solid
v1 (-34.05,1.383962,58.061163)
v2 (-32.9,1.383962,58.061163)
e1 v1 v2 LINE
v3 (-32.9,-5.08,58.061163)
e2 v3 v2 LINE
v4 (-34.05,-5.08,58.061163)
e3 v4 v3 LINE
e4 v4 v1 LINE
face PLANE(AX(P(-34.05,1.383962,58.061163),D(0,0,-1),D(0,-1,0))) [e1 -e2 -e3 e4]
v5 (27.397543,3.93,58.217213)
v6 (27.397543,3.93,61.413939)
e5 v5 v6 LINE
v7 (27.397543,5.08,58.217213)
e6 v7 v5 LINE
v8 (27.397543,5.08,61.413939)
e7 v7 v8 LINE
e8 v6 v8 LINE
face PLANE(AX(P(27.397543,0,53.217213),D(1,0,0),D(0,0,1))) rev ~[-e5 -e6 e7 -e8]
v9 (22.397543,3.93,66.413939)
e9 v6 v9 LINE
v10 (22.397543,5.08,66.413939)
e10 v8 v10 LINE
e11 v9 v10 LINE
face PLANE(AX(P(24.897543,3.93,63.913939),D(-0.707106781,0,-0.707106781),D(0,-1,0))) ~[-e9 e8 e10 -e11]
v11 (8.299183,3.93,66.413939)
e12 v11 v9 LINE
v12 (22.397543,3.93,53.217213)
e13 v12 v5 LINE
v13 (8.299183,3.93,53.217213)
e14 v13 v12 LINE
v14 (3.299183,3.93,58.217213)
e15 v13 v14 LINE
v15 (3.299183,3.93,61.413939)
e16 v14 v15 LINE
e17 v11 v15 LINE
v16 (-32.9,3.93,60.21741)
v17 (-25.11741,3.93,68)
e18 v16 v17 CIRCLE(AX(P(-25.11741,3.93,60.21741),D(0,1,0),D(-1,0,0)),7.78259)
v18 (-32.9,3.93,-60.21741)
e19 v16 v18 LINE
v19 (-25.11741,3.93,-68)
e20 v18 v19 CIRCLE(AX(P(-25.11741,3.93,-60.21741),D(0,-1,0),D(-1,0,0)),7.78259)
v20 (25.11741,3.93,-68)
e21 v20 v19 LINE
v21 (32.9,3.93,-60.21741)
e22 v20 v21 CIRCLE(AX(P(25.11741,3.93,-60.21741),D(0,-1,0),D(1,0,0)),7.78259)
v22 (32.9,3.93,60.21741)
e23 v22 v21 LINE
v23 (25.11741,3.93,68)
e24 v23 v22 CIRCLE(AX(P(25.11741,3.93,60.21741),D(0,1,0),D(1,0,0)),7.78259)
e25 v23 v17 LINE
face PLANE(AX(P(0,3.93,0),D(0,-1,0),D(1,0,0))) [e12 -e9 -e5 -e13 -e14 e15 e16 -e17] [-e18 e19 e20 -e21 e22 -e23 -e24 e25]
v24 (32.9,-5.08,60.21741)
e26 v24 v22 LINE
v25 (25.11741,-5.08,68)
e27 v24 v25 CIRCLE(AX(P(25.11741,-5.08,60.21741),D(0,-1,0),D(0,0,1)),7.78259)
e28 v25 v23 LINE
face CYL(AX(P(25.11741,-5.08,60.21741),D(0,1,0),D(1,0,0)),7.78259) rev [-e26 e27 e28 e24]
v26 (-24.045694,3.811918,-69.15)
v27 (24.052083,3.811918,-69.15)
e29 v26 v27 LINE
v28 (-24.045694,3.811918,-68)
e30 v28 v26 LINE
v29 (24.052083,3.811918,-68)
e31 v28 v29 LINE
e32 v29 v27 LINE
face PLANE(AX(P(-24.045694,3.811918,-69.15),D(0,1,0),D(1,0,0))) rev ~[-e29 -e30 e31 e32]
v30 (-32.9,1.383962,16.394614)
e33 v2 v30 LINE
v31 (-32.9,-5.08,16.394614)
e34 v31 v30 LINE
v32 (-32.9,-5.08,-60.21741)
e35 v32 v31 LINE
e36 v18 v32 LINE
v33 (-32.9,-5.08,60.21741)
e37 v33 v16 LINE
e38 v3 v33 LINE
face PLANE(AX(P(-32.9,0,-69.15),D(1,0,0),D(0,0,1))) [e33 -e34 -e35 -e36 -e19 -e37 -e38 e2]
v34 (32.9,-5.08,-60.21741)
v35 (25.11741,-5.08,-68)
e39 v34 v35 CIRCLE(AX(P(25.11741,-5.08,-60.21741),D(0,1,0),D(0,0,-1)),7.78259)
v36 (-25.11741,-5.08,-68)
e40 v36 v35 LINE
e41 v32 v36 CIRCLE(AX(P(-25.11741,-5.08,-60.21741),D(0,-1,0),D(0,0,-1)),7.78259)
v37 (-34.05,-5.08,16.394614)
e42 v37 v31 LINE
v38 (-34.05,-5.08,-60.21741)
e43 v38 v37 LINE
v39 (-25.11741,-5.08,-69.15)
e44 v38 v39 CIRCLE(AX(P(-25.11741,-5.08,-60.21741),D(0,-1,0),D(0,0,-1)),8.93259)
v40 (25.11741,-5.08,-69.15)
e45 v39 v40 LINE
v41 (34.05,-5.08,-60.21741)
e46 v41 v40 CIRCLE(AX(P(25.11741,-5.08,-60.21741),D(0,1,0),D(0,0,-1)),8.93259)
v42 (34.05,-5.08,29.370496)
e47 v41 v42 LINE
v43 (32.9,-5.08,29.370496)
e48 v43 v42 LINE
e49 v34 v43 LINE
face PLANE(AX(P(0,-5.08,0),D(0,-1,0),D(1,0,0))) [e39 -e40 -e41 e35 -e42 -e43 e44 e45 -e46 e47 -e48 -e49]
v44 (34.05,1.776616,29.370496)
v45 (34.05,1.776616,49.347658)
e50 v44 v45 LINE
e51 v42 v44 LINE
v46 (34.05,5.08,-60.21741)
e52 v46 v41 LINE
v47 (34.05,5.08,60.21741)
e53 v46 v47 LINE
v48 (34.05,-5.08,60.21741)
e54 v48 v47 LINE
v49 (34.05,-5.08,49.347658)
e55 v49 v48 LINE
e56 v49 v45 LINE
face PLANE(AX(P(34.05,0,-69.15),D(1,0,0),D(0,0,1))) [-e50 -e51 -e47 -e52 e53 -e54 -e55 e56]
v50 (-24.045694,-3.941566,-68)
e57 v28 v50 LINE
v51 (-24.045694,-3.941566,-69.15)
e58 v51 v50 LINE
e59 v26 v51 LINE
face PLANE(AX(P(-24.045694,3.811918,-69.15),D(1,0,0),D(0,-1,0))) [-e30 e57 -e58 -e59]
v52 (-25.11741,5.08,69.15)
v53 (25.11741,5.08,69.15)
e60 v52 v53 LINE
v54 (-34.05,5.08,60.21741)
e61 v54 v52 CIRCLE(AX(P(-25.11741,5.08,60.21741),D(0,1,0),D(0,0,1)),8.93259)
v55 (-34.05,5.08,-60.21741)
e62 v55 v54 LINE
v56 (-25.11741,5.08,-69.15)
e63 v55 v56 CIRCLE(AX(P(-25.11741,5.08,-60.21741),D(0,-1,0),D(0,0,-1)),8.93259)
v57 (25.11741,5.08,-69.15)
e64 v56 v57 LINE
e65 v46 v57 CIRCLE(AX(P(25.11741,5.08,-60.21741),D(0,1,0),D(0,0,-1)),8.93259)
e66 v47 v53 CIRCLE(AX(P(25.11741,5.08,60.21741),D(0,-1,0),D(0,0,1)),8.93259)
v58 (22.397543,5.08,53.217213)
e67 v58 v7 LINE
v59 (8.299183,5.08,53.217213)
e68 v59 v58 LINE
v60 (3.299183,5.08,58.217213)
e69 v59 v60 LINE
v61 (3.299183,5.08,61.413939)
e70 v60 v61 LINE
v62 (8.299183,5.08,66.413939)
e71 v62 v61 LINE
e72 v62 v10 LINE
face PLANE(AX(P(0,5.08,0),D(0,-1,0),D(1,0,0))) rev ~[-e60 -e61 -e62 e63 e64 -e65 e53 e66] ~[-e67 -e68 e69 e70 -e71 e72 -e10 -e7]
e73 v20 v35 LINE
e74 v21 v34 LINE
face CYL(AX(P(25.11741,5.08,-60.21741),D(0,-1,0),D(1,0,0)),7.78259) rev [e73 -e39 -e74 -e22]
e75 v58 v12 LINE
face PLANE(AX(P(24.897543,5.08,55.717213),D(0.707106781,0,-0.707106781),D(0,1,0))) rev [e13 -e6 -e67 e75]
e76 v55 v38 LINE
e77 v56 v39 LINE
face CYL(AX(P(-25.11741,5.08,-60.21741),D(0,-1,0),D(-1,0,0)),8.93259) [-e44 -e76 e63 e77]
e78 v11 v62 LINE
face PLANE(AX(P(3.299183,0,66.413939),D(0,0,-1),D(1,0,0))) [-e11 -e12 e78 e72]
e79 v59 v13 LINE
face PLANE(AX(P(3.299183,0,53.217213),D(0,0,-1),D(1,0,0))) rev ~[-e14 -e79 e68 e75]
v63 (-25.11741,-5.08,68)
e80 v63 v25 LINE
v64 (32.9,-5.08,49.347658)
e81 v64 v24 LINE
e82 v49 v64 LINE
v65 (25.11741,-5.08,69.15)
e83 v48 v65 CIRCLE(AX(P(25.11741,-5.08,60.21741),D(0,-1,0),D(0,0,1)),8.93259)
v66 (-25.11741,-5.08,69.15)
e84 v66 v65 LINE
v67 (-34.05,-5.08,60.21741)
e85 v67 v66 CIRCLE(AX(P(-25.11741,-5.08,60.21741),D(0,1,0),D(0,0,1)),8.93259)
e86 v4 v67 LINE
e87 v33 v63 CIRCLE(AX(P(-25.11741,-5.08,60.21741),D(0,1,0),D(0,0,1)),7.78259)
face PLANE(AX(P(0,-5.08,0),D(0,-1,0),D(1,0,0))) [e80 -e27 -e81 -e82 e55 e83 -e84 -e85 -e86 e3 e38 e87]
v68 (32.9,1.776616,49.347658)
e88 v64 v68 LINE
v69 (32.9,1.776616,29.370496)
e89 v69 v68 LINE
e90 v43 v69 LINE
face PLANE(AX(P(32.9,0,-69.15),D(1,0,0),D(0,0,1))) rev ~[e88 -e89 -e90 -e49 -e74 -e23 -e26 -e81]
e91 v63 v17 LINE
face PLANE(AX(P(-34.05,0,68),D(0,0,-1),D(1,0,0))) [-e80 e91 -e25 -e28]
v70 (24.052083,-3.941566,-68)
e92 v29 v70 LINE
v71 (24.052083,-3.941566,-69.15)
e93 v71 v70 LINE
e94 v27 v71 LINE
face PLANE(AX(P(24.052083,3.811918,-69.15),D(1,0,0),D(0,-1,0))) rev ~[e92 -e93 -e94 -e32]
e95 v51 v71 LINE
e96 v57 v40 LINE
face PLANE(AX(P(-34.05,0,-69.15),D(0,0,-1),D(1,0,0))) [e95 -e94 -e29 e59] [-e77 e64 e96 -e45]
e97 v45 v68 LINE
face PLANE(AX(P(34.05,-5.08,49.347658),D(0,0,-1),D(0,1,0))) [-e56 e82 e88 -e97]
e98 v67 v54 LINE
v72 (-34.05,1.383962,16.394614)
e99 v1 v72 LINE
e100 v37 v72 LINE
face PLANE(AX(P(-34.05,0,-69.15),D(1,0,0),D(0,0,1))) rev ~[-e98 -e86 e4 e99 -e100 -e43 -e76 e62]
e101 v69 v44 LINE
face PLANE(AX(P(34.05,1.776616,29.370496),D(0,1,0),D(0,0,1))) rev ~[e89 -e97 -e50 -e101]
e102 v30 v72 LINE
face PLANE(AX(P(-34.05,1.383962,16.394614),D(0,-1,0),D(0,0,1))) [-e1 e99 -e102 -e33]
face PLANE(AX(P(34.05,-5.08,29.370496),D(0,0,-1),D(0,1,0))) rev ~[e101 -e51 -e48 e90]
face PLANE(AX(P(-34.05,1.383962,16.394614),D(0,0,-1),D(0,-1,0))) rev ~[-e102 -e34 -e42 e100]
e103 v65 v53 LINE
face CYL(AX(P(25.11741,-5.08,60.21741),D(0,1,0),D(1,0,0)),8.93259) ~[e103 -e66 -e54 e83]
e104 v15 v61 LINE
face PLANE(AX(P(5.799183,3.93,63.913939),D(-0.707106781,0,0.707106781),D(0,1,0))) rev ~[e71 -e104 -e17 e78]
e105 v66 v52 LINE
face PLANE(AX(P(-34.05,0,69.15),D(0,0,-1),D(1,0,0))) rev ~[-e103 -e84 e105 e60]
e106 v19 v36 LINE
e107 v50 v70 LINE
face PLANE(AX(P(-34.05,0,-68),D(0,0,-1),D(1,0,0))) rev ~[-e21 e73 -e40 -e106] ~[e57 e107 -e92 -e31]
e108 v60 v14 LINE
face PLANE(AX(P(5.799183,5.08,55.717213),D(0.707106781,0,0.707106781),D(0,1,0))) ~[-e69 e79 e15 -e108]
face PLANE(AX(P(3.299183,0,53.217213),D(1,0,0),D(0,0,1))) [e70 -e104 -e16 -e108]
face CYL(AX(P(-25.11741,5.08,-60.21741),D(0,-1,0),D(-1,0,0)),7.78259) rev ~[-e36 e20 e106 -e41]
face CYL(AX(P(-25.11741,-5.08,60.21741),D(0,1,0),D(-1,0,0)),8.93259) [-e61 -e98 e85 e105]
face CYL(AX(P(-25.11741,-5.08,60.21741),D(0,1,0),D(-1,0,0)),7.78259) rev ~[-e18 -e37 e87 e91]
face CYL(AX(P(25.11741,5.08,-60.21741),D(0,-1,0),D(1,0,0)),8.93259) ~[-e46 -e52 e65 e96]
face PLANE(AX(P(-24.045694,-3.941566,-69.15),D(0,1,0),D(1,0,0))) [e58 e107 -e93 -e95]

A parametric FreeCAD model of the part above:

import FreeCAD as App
import Part
import Sketcher
Q = App.Units.Quantity


def edges_at(feature, points):
    """Names of the edges that pass closest to the given points."""
    edges = feature.Shape.Edges
    near = lambda p: min(range(len(edges)), key=lambda i: edges[i].distToShape(Part.Vertex(*p))[0])
    return sorted({f"Edge{near(p) + 1}" for p in points})


def faces_at(feature, points):
    """Names of the faces that lie closest to the given points."""
    faces = feature.Shape.Faces
    near = lambda p: min(range(len(faces)), key=lambda i: faces[i].distToShape(Part.Vertex(*p))[0])
    return sorted({f"Face{near(p) + 1}" for p in points})

doc = App.newDocument("Part")
body = doc.addObject("PartDesign::Body", "Body")

# Sketch on XZ plane
sketch1 = body.newObject("Sketcher::SketchObject", "Sketch")
sketch1.AttachmentSupport = (doc.getObject("XZ_Plane"), [""])
sketch1.MapMode = "FlatFace"
sketch1.addGeometry([
    Part.LineSegment(App.Vector(-34, 69, 0), App.Vector(-34, -69, 0)),
    Part.LineSegment(App.Vector(-34, -69, 0), App.Vector(34, -69, 0)),
    Part.LineSegment(App.Vector(34, -69, 0), App.Vector(34, 69, 0)),
    Part.LineSegment(App.Vector(34, 69, 0), App.Vector(-34, 69, 0)),
], False)
sketch1.addConstraint([
    Sketcher.Constraint("Coincident", 0, 2, 1, 1),
    Sketcher.Constraint("Coincident", 1, 2, 2, 1),
    Sketcher.Constraint("Coincident", 2, 2, 3, 1),
    Sketcher.Constraint("Coincident", 3, 2, 0, 1),
    Sketcher.Constraint("Vertical", 0),
    Sketcher.Constraint("Horizontal", 1),
    Sketcher.Constraint("Vertical", 2),
    Sketcher.Constraint("Horizontal", 3),
    Sketcher.Constraint("Symmetric", 0, 2, 2, 2, -1, 1),
    Sketcher.Constraint("DistanceX", 1, 1, 1, 2, Q("68.1 mm")),
    Sketcher.Constraint("DistanceY", 0, 2, 0, 1, Q("138.3 mm")),
])
pad1 = body.newObject("PartDesign::Pad", "Pad")
pad1.Profile = sketch1
pad1.Length = 10.16
pad1.Midplane = True
doc.recompute()

fillet = body.newObject("PartDesign::Fillet", "Fillet")
fillet.Base = (pad1, edges_at(pad1, [
    (-34.05, 0, 69.15),
    (34.05, 0, 69.15),
    (34.05, 0, -69.15),
    (-34.05, 0, -69.15),
]))
fillet.Radius = 8.93259
doc.recompute()

thickness = body.newObject("PartDesign::Thickness", "Thickness")
thickness.Base = (fillet, faces_at(fillet, [(0, -5.08, 0)]))
thickness.Value = 1.15
thickness.Reversed = True
thickness.Join = "Arc"

# Sketch on XZ plane
sketch2 = body.newObject("Sketcher::SketchObject", "Sketch001")
sketch2.AttachmentSupport = (doc.getObject("XZ_Plane"), [""])
sketch2.MapMode = "FlatFace"
sketch2.addGeometry([
    Part.LineSegment(App.Vector(3, 66, 0), App.Vector(3, 53, 0)),
    Part.LineSegment(App.Vector(3, 53, 0), App.Vector(27, 53, 0)),
    Part.LineSegment(App.Vector(27, 53, 0), App.Vector(27, 66, 0)),
    Part.LineSegment(App.Vector(27, 66, 0), App.Vector(3, 66, 0)),
], False)
sketch2.addConstraint([
    Sketcher.Constraint("Coincident", 0, 2, 1, 1),
    Sketcher.Constraint("Coincident", 1, 2, 2, 1),
    Sketcher.Constraint("Coincident", 2, 2, 3, 1),
    Sketcher.Constraint("Coincident", 3, 2, 0, 1),
    Sketcher.Constraint("Vertical", 0),
    Sketcher.Constraint("Horizontal", 1),
    Sketcher.Constraint("Vertical", 2),
    Sketcher.Constraint("Horizontal", 3),
    Sketcher.Constraint("DistanceX", 1, 1, 1, 2, Q("24.09836 mm")),
    Sketcher.Constraint("DistanceY", 0, 2, 0, 1, Q("13.196725 mm")),
    Sketcher.Constraint("DistanceY", -1, 1, 2, 2, Q("66.413939 mm")),
    Sketcher.Constraint("DistanceX", -1, 1, 0, 2, Q("3.299183 mm")),
])
pocket1 = body.newObject("PartDesign::Pocket", "Pocket")
pocket1.Profile = sketch2
pocket1.Length = 25
pocket1.Midplane = True

# Sketch on XY plane
sketch3 = body.newObject("Sketcher::SketchObject", "Sketch002")
sketch3.AttachmentSupport = (doc.getObject("XY_Plane"), [""])
sketch3.MapMode = "FlatFace"
sketch3.AttachmentOffset = App.Placement(App.Vector(0, 0, -69.15), App.Rotation())
sketch3.addGeometry([
    Part.LineSegment(App.Vector(-24, -4, 0), App.Vector(-24, 4, 0)),
    Part.LineSegment(App.Vector(-24, 4, 0), App.Vector(24, 4, 0)),
    Part.LineSegment(App.Vector(24, 4, 0), App.Vector(24, -4, 0)),
    Part.LineSegment(App.Vector(24, -4, 0), App.Vector(-24, -4, 0)),
], False)
sketch3.addConstraint([
    Sketcher.Constraint("Coincident", 0, 2, 1, 1),
    Sketcher.Constraint("Coincident", 1, 2, 2, 1),
    Sketcher.Constraint("Coincident", 2, 2, 3, 1),
    Sketcher.Constraint("Coincident", 3, 2, 0, 1),
    Sketcher.Constraint("Vertical", 0),
    Sketcher.Constraint("Horizontal", 1),
    Sketcher.Constraint("Vertical", 2),
    Sketcher.Constraint("Horizontal", 3),
    Sketcher.Constraint("DistanceX", 1, 1, 1, 2, Q("48.097777 mm")),
    Sketcher.Constraint("DistanceY", 0, 1, 0, 2, Q("7.753484 mm")),
    Sketcher.Constraint("DistanceX", 0, 2, -1, 1, Q("24.045694 mm")),
    Sketcher.Constraint("DistanceY", -1, 1, 0, 2, Q("3.811918 mm")),
])
pocket2 = body.newObject("PartDesign::Pocket", "Pocket001")
pocket2.Profile = sketch3
pocket2.Length = 25
pocket2.Midplane = True

# Sketch on YZ plane
sketch4 = body.newObject("Sketcher::SketchObject", "Sketch003")
sketch4.AttachmentSupport = (doc.getObject("YZ_Plane"), [""])
sketch4.MapMode = "FlatFace"
sketch4.AttachmentOffset = App.Placement(App.Vector(0, 0, -34.05), App.Rotation())
sketch4.addGeometry([
    Part.LineSegment(App.Vector(1, 58, 0), App.Vector(1, 16, 0)),
    Part.LineSegment(App.Vector(1, 16, 0), App.Vector(-9, 16, 0)),
    Part.LineSegment(App.Vector(-9, 16, 0), App.Vector(-9, 58, 0)),
    Part.LineSegment(App.Vector(-9, 58, 0), App.Vector(1, 58, 0)),
], False)
sketch4.addConstraint([
    Sketcher.Constraint("Coincident", 0, 2, 1, 1),
    Sketcher.Constraint("Coincident", 1, 2, 2, 1),
    Sketcher.Constraint("Coincident", 2, 2, 3, 1),
    Sketcher.Constraint("Coincident", 3, 2, 0, 1),
    Sketcher.Constraint("Vertical", 0),
    Sketcher.Constraint("Horizontal", 1),
    Sketcher.Constraint("Vertical", 2),
    Sketcher.Constraint("Horizontal", 3),
    Sketcher.Constraint("DistanceY", 0, 2, 0, 1, Q("41.666549 mm")),
    Sketcher.Constraint("DistanceX", 1, 2, 1, 1, Q("10.118616 mm")),
    Sketcher.Constraint("DistanceX", -1, 1, 0, 2, Q("1.383962 mm")),
    Sketcher.Constraint("DistanceY", -1, 1, 0, 2, Q("16.394614 mm")),
])
pocket3 = body.newObject("PartDesign::Pocket", "Pocket002")
pocket3.Profile = sketch4
pocket3.Length = 25
pocket3.Midplane = True

# Sketch on YZ plane
sketch5 = body.newObject("Sketcher::SketchObject", "Sketch004")
sketch5.AttachmentSupport = (doc.getObject("YZ_Plane"), [""])
sketch5.MapMode = "FlatFace"
sketch5.AttachmentOffset = App.Placement(App.Vector(0, 0, 34.05), App.Rotation())
sketch5.addGeometry([
    Part.LineSegment(App.Vector(-5, 49, 0), App.Vector(-5, 29, 0)),
    Part.LineSegment(App.Vector(-5, 29, 0), App.Vector(2, 29, 0)),
    Part.LineSegment(App.Vector(2, 29, 0), App.Vector(2, 49, 0)),
    Part.LineSegment(App.Vector(2, 49, 0), App.Vector(-5, 49, 0)),
], False)
sketch5.addConstraint([
    Sketcher.Constraint("Coincident", 0, 2, 1, 1),
    Sketcher.Constraint("Coincident", 1, 2, 2, 1),
    Sketcher.Constraint("Coincident", 2, 2, 3, 1),
    Sketcher.Constraint("Coincident", 3, 2, 0, 1),
    Sketcher.Constraint("Vertical", 0),
    Sketcher.Constraint("Horizontal", 1),
    Sketcher.Constraint("Vertical", 2),
    Sketcher.Constraint("Horizontal", 3),
    Sketcher.Constraint("DistanceX", 0, 2, -1, 1, Q("5.08 mm")),
    Sketcher.Constraint("DistanceX", 1, 1, 1, 2, Q("6.856616 mm")),
    Sketcher.Constraint("DistanceY", 0, 2, 0, 1, Q("19.977162 mm")),
    Sketcher.Constraint("DistanceY", -1, 1, 2, 2, Q("49.347658 mm")),
])
pocket4 = body.newObject("PartDesign::Pocket", "Pocket003")
pocket4.Profile = sketch5
pocket4.Length = 25
pocket4.Midplane = True
doc.recompute()

chamfer = body.newObject("PartDesign::Chamfer", "Chamfer")
chamfer.Base = (pocket4, edges_at(pocket4, [
    (3.299, 4.505, 66.414),
    (27.398, 4.505, 66.414),
    (27.398, 4.505, 53.217),
    (3.299, 4.505, 53.217),
]))
chamfer.Size = 5

doc.recompute()
